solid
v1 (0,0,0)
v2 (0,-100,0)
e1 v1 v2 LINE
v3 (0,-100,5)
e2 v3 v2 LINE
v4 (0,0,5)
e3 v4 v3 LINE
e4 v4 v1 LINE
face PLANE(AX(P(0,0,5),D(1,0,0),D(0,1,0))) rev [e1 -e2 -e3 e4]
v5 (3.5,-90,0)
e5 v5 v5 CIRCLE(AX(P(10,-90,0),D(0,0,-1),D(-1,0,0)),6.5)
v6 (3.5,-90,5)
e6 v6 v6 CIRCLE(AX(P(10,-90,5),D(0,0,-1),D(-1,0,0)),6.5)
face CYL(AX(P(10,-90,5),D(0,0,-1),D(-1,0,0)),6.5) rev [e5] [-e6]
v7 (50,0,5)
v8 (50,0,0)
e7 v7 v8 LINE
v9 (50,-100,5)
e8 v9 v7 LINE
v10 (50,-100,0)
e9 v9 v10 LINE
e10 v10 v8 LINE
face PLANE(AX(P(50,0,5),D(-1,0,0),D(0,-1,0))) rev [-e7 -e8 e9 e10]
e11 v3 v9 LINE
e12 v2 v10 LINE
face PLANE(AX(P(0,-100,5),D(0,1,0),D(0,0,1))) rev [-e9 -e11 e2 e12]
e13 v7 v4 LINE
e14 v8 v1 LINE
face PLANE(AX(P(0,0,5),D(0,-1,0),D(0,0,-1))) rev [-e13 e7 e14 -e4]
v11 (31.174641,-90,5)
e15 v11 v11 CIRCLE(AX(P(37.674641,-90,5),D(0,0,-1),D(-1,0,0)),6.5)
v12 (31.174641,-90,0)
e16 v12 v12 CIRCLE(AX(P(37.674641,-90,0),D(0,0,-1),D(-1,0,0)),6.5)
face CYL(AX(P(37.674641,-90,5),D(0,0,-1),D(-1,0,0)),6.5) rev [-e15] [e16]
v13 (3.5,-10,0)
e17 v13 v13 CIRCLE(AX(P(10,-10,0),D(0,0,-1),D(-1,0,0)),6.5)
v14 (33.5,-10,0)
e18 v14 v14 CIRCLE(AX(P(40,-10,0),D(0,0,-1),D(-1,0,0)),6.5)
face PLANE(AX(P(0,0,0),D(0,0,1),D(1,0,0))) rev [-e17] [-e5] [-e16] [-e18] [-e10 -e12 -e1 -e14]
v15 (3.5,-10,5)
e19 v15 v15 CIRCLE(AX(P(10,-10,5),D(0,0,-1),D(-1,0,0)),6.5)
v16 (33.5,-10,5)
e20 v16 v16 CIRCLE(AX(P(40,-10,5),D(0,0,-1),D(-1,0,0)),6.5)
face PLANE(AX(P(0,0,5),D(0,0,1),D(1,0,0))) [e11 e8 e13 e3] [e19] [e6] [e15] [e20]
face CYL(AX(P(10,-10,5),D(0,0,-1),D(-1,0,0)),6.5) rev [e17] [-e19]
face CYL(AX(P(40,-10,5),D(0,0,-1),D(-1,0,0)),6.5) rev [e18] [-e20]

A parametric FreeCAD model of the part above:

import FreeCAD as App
import Part
import Sketcher
from FreeCAD import Vector

doc = App.newDocument("Part")
body = doc.addObject("PartDesign::Body", "Body")

sketch1 = body.newObject("Sketcher::SketchObject", "Sketch")
sketch1.AttachmentSupport = (doc.getObject("XY_Plane"), [""])
sketch1.MapMode = "FlatFace"
sketch1.addGeometry([
    Part.LineSegment(Vector(0, 0, 0), Vector(0, -100, 0)),
    Part.LineSegment(Vector(0, -100, 0), Vector(50, -100, 0)),
    Part.LineSegment(Vector(50, -100, 0), Vector(50, 0, 0)),
    Part.LineSegment(Vector(50, 0, 0), Vector(0, 0, 0)),
], False)
sketch1.addConstraint([
    Sketcher.Constraint("Coincident", 0, 2, 1, 1),
    Sketcher.Constraint("Coincident", 1, 2, 2, 1),
    Sketcher.Constraint("Coincident", 2, 2, 3, 1),
    Sketcher.Constraint("Coincident", 3, 2, 0, 1),
    Sketcher.Constraint("Vertical", 0),
    Sketcher.Constraint("Horizontal", 1),
    Sketcher.Constraint("Vertical", 2),
    Sketcher.Constraint("Horizontal", 3),
    Sketcher.Constraint("Coincident", 3, 2, -1, 1),
    Sketcher.Constraint("DistanceX", 1, 1, 1, 2, 50.0),
    Sketcher.Constraint("DistanceY", 0, 2, 0, 1, 100.0),
])
pad1 = body.newObject("PartDesign::Pad", "Pad")
pad1.Profile = sketch1
pad1.Length = 5

sketch2 = body.newObject("Sketcher::SketchObject", "Sketch001")
sketch2.AttachmentSupport = (doc.getObject("XY_Plane"), [""])
sketch2.MapMode = "FlatFace"
sketch2.addGeometry([
    Part.Circle(Vector(10, -10, 0), Vector(0, 0, 1), 6),
    Part.Circle(Vector(40, -10, 0), Vector(0, 0, 1), 6),
    Part.Circle(Vector(10, -90, 0), Vector(0, 0, 1), 6),
    Part.Circle(Vector(38, -90, 0), Vector(0, 0, 1), 6),
], False)
sketch2.addConstraint([
    Sketcher.Constraint("Equal", 0, 1),
    Sketcher.Constraint("Equal", 1, 2),
    Sketcher.Constraint("Equal", 2, 3),
    Sketcher.Constraint("Horizontal", 0, 3, 1, 3),
    Sketcher.Constraint("Horizontal", 2, 3, 3, 3),
    Sketcher.Constraint("Vertical", 0, 3, 2, 3),
    Sketcher.Constraint("Diameter", 0, 13.0),
    Sketcher.Constraint("DistanceX", -1, 1, 0, 3, 10.0),
    Sketcher.Constraint("DistanceY", 0, 3, -1, 1, 10.0),
    Sketcher.Constraint("DistanceX", -1, 1, 1, 3, 40.0),
    Sketcher.Constraint("DistanceY", 2, 3, -1, 1, 90.0),
    Sketcher.Constraint("DistanceX", -1, 1, 3, 3, 37.674641),
])
pocket1 = body.newObject("PartDesign::Pocket", "Pocket")
pocket1.Profile = sketch2
pocket1.Type = "ThroughAll"
pocket1.Reversed = True

doc.recompute()
